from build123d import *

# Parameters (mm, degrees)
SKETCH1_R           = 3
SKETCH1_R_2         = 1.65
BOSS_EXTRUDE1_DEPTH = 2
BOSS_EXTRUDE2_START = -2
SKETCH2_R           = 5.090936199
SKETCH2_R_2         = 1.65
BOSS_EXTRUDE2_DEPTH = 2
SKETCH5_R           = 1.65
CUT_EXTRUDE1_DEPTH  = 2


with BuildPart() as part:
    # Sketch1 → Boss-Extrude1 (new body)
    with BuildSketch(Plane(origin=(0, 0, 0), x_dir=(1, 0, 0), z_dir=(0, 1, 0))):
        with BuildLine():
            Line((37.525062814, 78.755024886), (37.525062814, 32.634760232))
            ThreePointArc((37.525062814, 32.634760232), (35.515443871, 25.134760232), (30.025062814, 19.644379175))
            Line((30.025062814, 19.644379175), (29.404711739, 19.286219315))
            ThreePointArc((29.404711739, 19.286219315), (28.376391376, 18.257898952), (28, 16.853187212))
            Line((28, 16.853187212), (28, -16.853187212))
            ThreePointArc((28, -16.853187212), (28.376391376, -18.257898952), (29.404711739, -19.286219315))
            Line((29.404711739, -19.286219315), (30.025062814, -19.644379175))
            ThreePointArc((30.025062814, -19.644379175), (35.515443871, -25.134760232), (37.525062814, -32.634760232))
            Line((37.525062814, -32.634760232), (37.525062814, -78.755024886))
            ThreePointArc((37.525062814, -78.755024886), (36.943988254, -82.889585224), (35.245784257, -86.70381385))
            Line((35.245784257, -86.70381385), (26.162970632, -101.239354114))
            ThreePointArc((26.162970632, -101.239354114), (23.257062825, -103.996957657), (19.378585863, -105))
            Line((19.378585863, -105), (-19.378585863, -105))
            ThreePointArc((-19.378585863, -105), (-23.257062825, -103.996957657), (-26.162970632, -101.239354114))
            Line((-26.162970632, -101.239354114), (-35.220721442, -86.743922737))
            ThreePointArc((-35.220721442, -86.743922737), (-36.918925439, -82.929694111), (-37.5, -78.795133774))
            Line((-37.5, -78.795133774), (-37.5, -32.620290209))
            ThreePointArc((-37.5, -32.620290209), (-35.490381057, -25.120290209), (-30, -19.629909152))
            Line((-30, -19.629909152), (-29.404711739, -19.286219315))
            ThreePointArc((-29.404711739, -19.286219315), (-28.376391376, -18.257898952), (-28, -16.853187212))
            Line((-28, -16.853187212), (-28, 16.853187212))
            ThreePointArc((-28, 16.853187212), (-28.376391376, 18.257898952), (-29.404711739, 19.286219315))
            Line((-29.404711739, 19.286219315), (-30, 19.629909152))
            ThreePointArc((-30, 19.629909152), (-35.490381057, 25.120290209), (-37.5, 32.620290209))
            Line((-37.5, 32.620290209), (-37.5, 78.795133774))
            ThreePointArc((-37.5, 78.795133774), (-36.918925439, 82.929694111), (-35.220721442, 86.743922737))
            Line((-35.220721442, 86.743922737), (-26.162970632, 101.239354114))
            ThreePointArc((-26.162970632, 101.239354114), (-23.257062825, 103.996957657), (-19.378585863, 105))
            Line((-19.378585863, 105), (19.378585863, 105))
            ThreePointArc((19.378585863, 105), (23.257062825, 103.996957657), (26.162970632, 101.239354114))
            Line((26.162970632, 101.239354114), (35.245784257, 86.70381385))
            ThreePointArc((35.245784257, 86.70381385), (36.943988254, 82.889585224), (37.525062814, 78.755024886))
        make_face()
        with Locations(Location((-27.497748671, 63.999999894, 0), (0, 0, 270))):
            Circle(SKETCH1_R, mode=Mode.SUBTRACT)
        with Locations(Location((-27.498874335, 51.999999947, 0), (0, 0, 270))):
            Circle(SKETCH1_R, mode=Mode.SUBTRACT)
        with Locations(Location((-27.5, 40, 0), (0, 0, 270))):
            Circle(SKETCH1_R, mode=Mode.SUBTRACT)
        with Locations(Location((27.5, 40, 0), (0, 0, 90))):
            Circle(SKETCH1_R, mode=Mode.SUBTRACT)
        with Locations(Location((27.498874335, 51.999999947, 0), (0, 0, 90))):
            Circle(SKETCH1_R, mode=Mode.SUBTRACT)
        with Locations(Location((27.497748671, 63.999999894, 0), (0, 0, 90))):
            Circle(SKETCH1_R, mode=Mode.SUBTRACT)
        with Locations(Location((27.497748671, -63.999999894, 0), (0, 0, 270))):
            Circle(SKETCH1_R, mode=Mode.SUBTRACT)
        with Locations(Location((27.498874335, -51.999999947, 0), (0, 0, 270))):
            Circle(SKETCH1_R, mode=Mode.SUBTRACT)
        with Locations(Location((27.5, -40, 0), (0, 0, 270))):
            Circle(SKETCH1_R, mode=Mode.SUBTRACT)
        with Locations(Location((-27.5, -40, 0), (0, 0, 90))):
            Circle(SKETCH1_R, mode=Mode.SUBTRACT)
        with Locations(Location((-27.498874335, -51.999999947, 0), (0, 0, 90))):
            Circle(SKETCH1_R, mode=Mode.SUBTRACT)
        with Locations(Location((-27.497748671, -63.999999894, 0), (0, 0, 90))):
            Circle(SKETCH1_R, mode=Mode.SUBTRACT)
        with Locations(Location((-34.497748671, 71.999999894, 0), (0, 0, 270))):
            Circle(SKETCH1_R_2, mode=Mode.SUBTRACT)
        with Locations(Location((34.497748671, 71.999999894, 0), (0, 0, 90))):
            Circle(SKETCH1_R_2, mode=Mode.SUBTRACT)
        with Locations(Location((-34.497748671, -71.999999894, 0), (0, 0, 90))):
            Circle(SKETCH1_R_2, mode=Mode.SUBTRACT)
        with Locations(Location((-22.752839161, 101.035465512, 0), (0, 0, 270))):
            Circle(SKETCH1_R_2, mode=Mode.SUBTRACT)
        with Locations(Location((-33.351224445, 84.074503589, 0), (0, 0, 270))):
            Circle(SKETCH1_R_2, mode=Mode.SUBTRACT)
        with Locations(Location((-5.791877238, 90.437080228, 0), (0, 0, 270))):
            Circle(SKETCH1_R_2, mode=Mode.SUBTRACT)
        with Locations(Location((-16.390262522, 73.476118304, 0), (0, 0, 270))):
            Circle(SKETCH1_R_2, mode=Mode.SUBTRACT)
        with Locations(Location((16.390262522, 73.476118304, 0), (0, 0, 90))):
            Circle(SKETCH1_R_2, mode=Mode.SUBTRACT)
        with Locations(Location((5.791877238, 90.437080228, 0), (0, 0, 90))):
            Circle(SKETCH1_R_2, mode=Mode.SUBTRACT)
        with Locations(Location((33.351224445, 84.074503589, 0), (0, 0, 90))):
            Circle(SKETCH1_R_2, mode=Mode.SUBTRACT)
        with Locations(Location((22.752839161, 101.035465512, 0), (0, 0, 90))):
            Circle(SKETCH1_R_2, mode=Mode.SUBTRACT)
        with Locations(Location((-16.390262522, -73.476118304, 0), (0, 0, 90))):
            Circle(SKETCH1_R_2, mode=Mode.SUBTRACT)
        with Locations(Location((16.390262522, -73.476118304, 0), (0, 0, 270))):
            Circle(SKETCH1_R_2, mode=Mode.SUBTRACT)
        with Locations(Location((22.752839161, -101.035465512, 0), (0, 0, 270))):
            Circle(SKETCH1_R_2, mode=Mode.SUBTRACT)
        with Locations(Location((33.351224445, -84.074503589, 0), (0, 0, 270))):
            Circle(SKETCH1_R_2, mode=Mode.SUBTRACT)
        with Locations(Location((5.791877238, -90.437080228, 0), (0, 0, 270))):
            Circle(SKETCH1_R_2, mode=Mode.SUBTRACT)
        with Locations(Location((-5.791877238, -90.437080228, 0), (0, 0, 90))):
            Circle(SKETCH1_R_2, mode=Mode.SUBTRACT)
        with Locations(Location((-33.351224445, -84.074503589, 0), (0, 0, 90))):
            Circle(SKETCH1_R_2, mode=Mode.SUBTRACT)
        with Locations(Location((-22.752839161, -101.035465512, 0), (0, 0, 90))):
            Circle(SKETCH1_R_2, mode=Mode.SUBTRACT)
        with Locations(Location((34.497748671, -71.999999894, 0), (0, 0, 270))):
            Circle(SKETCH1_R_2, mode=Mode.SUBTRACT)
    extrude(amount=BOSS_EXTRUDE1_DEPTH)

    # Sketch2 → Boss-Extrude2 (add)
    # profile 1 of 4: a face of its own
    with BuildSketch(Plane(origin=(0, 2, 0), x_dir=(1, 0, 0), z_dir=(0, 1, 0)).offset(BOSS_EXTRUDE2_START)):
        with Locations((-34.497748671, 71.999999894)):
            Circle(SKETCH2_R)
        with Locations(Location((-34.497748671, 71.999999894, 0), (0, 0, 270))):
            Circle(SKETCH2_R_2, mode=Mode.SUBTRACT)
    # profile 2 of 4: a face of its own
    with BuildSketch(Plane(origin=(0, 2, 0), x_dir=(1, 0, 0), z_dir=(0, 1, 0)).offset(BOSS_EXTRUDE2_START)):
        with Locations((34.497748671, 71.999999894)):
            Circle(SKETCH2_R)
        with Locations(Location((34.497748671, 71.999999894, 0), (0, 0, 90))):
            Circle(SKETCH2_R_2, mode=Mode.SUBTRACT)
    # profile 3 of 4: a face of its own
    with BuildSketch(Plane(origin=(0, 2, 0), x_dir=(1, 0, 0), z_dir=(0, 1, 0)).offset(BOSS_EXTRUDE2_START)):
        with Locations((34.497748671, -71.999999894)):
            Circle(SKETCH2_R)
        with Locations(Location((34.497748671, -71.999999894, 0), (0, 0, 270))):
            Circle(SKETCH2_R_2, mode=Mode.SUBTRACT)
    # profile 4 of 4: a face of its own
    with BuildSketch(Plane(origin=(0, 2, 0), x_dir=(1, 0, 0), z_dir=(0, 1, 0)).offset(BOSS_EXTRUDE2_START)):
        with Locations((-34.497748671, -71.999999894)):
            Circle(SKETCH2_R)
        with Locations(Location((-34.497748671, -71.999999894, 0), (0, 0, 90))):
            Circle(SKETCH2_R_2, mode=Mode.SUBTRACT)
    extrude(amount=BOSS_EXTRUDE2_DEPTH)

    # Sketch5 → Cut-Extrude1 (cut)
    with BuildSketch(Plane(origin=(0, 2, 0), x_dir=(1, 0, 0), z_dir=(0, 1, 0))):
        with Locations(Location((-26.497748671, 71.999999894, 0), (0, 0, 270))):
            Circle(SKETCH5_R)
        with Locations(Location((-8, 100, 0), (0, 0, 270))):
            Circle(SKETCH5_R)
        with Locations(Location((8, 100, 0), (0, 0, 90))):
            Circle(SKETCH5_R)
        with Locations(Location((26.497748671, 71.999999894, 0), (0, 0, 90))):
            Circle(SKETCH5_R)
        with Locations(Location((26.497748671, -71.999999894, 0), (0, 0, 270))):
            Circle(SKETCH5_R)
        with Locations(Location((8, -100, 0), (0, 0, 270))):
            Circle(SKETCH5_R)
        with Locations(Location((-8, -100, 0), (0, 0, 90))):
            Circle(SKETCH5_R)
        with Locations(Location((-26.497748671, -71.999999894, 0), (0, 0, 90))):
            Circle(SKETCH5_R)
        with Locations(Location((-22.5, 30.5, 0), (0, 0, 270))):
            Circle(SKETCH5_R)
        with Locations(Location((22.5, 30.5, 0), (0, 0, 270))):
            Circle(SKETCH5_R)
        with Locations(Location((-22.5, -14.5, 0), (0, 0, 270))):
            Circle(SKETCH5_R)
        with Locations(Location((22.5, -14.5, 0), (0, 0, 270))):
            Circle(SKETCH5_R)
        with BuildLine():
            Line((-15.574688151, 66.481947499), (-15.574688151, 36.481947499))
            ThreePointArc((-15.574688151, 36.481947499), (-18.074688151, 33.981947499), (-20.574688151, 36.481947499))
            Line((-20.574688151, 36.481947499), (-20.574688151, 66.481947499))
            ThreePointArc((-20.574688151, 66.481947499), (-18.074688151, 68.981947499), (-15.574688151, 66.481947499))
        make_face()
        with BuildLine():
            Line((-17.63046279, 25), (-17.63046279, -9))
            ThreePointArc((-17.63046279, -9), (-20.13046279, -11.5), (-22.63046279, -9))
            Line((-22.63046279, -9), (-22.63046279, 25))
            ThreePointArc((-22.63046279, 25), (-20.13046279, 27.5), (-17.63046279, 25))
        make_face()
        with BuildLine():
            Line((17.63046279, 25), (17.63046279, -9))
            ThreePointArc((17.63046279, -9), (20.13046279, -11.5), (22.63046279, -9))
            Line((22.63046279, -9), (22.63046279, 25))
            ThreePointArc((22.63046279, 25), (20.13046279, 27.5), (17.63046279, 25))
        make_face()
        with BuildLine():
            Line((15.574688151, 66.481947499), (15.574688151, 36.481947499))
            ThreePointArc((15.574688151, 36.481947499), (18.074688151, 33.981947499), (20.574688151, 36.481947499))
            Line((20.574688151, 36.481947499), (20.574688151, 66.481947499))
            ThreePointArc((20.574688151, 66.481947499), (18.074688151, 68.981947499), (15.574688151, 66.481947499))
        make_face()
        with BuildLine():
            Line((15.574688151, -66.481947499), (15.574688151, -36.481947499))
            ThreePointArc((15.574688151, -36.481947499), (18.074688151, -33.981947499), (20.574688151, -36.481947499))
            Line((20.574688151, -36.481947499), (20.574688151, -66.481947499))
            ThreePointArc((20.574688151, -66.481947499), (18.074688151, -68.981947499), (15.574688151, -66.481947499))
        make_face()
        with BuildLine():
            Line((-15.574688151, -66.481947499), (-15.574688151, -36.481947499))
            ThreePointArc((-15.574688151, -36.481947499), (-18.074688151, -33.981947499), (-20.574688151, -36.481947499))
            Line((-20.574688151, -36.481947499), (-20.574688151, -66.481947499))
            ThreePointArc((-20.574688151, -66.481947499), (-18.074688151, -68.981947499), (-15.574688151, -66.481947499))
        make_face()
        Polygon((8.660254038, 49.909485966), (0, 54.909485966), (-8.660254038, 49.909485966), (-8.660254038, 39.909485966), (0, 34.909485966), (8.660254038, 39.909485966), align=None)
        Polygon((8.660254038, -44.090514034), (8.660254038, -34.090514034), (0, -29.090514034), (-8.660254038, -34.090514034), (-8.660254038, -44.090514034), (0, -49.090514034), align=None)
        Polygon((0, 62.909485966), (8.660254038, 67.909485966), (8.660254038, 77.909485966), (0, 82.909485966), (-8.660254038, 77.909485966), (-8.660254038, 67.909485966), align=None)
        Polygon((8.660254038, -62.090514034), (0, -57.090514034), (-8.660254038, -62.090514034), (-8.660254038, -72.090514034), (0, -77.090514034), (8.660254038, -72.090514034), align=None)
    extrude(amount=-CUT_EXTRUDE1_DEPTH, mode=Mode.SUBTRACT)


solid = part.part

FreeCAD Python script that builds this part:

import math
import FreeCAD as App
import Part
import Sketcher

V = App.Vector
Q = App.Units.Quantity

doc = App.newDocument("Part")
body = doc.addObject("PartDesign::Body", "Body")

# Sketch on XZ plane
sketch1 = body.newObject("Sketcher::SketchObject", "Sketch")
sketch1.AttachmentSupport = (doc.getObject("XZ_Plane"), [""])
sketch1.MapMode = "FlatFace"
sketch1.addGeometry(Part.LineSegment(V(37.5, -32.6, 0), V(37.5, -78.8, 0)), False)
sketch1.addGeometry(Part.ArcOfCircle(Part.Circle(V(22.5, -78.8, 0), V(0, 0, 1), 15), math.radians(-32), math.radians(0)), False)
sketch1.addGeometry(Part.LineSegment(V(35.2, -86.7, 0), V(26.2, -101.2, 0)), False)
sketch1.addGeometry(Part.ArcOfCircle(Part.Circle(V(19.4, -97, 0), V(0, 0, 1), 8), math.radians(-90), math.radians(-32)), False)
sketch1.addGeometry(Part.LineSegment(V(19.4, -105, 0), V(-19.4, -105, 0)), False)
sketch1.addGeometry(Part.ArcOfCircle(Part.Circle(V(-19.4, -97, 0), V(0, 0, 1), 8), math.radians(-148), math.radians(-90)), False)
sketch1.addGeometry(Part.LineSegment(V(-26.2, -101.2, 0), V(-35.2, -86.7, 0)), False)
sketch1.addGeometry(Part.ArcOfCircle(Part.Circle(V(-22.5, -78.8, 0), V(0, 0, 1), 15), math.radians(180), math.radians(212)), False)
sketch1.addGeometry(Part.LineSegment(V(-37.5, -78.8, 0), V(-37.5, -32.6, 0)), False)
sketch1.addGeometry(Part.ArcOfCircle(Part.Circle(V(-22.5, -32.6, 0), V(0, 0, 1), 15), math.radians(120), math.radians(180)), False)
sketch1.addGeometry(Part.LineSegment(V(-30, -19.6, 0), V(-29.4, -19.3, 0)), False)
sketch1.addGeometry(Part.ArcOfCircle(Part.Circle(V(-30.8, -16.9, 0), V(0, 0, 1), 2.8), math.radians(-60), math.radians(0)), False)
sketch1.addGeometry(Part.LineSegment(V(-28, -16.9, 0), V(-28, 16.9, 0)), False)
sketch1.addGeometry(Part.ArcOfCircle(Part.Circle(V(-30.8, 16.9, 0), V(0, 0, 1), 2.8), math.radians(0), math.radians(60)), False)
sketch1.addGeometry(Part.LineSegment(V(-29.4, 19.3, 0), V(-30, 19.6, 0)), False)
sketch1.addGeometry(Part.ArcOfCircle(Part.Circle(V(-22.5, 32.6, 0), V(0, 0, 1), 15), math.radians(180), math.radians(240)), False)
sketch1.addGeometry(Part.LineSegment(V(-37.5, 32.6, 0), V(-37.5, 78.8, 0)), False)
sketch1.addGeometry(Part.ArcOfCircle(Part.Circle(V(-22.5, 78.8, 0), V(0, 0, 1), 15), math.radians(148), math.radians(180)), False)
sketch1.addGeometry(Part.LineSegment(V(-35.2, 86.7, 0), V(-26.2, 101.2, 0)), False)
sketch1.addGeometry(Part.ArcOfCircle(Part.Circle(V(-19.4, 97, 0), V(0, 0, 1), 8), math.radians(90), math.radians(148)), False)
sketch1.addGeometry(Part.LineSegment(V(-19.4, 105, 0), V(19.4, 105, 0)), False)
sketch1.addGeometry(Part.ArcOfCircle(Part.Circle(V(19.4, 97, 0), V(0, 0, 1), 8), math.radians(32), math.radians(90)), False)
sketch1.addGeometry(Part.LineSegment(V(26.2, 101.2, 0), V(35.2, 86.7, 0)), False)
sketch1.addGeometry(Part.ArcOfCircle(Part.Circle(V(22.5, 78.8, 0), V(0, 0, 1), 15), math.radians(0), math.radians(32)), False)
sketch1.addGeometry(Part.LineSegment(V(37.5, 78.8, 0), V(37.5, 32.6, 0)), False)
sketch1.addGeometry(Part.ArcOfCircle(Part.Circle(V(22.5, 32.6, 0), V(0, 0, 1), 15), math.radians(-60), math.radians(0)), False)
sketch1.addGeometry(Part.LineSegment(V(30, 19.6, 0), V(29.4, 19.3, 0)), False)
sketch1.addGeometry(Part.ArcOfCircle(Part.Circle(V(30.8, 16.9, 0), V(0, 0, 1), 2.8), math.radians(120), math.radians(180)), False)
sketch1.addGeometry(Part.LineSegment(V(28, 16.9, 0), V(28, -16.9, 0)), False)
sketch1.addGeometry(Part.ArcOfCircle(Part.Circle(V(30.8, -16.9, 0), V(0, 0, 1), 2.8), math.radians(180), math.radians(240)), False)
sketch1.addGeometry(Part.LineSegment(V(29.4, -19.3, 0), V(30, -19.6, 0)), False)
sketch1.addGeometry(Part.ArcOfCircle(Part.Circle(V(22.5, -32.6, 0), V(0, 0, 1), 15), math.radians(0), math.radians(60)), False)
sketch1.addGeometry(Part.Circle(V(33.4, 84.1, 0), V(0, 0, 1), 1.6), False)
sketch1.addGeometry(Part.Circle(V(22.8, 101, 0), V(0, 0, 1), 1.6), False)
sketch1.addGeometry(Part.Circle(V(34.5, 72, 0), V(0, 0, 1), 1.6), False)
sketch1.addGeometry(Part.Circle(V(27.5, 64, 0), V(0, 0, 1), 3), False)
sketch1.addGeometry(Part.Circle(V(27.5, 52, 0), V(0, 0, 1), 3), False)
sketch1.addGeometry(Part.Circle(V(5.8, 90.4, 0), V(0, 0, 1), 1.6), False)
sketch1.addGeometry(Part.Circle(V(16.4, 73.5, 0), V(0, 0, 1), 1.6), False)
sketch1.addGeometry(Part.Circle(V(27.5, 40, 0), V(0, 0, 1), 3), False)
sketch1.addGeometry(Part.Circle(V(-5.8, 90.4, 0), V(0, 0, 1), 1.6), False)
sketch1.addGeometry(Part.Circle(V(-16.4, 73.5, 0), V(0, 0, 1), 1.6), False)
sketch1.addGeometry(Part.Circle(V(-22.8, 101, 0), V(0, 0, 1), 1.6), False)
sketch1.addGeometry(Part.Circle(V(-33.4, 84.1, 0), V(0, 0, 1), 1.6), False)
sketch1.addGeometry(Part.Circle(V(-34.5, 72, 0), V(0, 0, 1), 1.6), False)
sketch1.addGeometry(Part.Circle(V(-27.5, 64, 0), V(0, 0, 1), 3), False)
sketch1.addGeometry(Part.Circle(V(-27.5, 52, 0), V(0, 0, 1), 3), False)
sketch1.addGeometry(Part.Circle(V(-27.5, 40, 0), V(0, 0, 1), 3), False)
sketch1.addGeometry(Part.Circle(V(27.5, -40, 0), V(0, 0, 1), 3), False)
sketch1.addGeometry(Part.Circle(V(27.5, -52, 0), V(0, 0, 1), 3), False)
sketch1.addGeometry(Part.Circle(V(27.5, -64, 0), V(0, 0, 1), 3), False)
sketch1.addGeometry(Part.Circle(V(34.5, -72, 0), V(0, 0, 1), 1.6), False)
sketch1.addGeometry(Part.Circle(V(33.4, -84.1, 0), V(0, 0, 1), 1.6), False)
sketch1.addGeometry(Part.Circle(V(22.8, -101, 0), V(0, 0, 1), 1.6), False)
sketch1.addGeometry(Part.Circle(V(16.4, -73.5, 0), V(0, 0, 1), 1.6), False)
sketch1.addGeometry(Part.Circle(V(5.8, -90.4, 0), V(0, 0, 1), 1.6), False)
sketch1.addGeometry(Part.Circle(V(-27.5, -40, 0), V(0, 0, 1), 3), False)
sketch1.addGeometry(Part.Circle(V(-16.4, -73.5, 0), V(0, 0, 1), 1.6), False)
sketch1.addGeometry(Part.Circle(V(-5.8, -90.4, 0), V(0, 0, 1), 1.6), False)
sketch1.addGeometry(Part.Circle(V(-27.5, -52, 0), V(0, 0, 1), 3), False)
sketch1.addGeometry(Part.Circle(V(-27.5, -64, 0), V(0, 0, 1), 3), False)
sketch1.addGeometry(Part.Circle(V(-34.5, -72, 0), V(0, 0, 1), 1.6), False)
sketch1.addGeometry(Part.Circle(V(-22.8, -101, 0), V(0, 0, 1), 1.6), False)
sketch1.addGeometry(Part.Circle(V(-33.4, -84.1, 0), V(0, 0, 1), 1.6), False)
sketch1.addConstraint(Sketcher.Constraint("Tangent", 0, 2, 1, 2))
sketch1.addConstraint(Sketcher.Constraint("Tangent", 1, 1, 2, 1))
sketch1.addConstraint(Sketcher.Constraint("Tangent", 2, 2, 3, 2))
sketch1.addConstraint(Sketcher.Constraint("Tangent", 3, 1, 4, 1))
sketch1.addConstraint(Sketcher.Constraint("Tangent", 4, 2, 5, 2))
sketch1.addConstraint(Sketcher.Constraint("Tangent", 5, 1, 6, 1))
sketch1.addConstraint(Sketcher.Constraint("Tangent", 6, 2, 7, 2))
sketch1.addConstraint(Sketcher.Constraint("Tangent", 7, 1, 8, 1))
sketch1.addConstraint(Sketcher.Constraint("Tangent", 8, 2, 9, 2))
sketch1.addConstraint(Sketcher.Constraint("Tangent", 9, 1, 10, 1))
sketch1.addConstraint(Sketcher.Constraint("Tangent", 10, 2, 11, 1))
sketch1.addConstraint(Sketcher.Constraint("Tangent", 11, 2, 12, 1))
sketch1.addConstraint(Sketcher.Constraint("Tangent", 12, 2, 13, 1))
sketch1.addConstraint(Sketcher.Constraint("Tangent", 13, 2, 14, 1))
sketch1.addConstraint(Sketcher.Constraint("Tangent", 14, 2, 15, 2))
sketch1.addConstraint(Sketcher.Constraint("Tangent", 15, 1, 16, 1))
sketch1.addConstraint(Sketcher.Constraint("Tangent", 16, 2, 17, 2))
sketch1.addConstraint(Sketcher.Constraint("Tangent", 17, 1, 18, 1))
sketch1.addConstraint(Sketcher.Constraint("Tangent", 18, 2, 19, 2))
sketch1.addConstraint(Sketcher.Constraint("Tangent", 19, 1, 20, 1))
sketch1.addConstraint(Sketcher.Constraint("Tangent", 20, 2, 21, 2))
sketch1.addConstraint(Sketcher.Constraint("Tangent", 21, 1, 22, 1))
sketch1.addConstraint(Sketcher.Constraint("Tangent", 22, 2, 23, 2))
sketch1.addConstraint(Sketcher.Constraint("Tangent", 23, 1, 24, 1))
sketch1.addConstraint(Sketcher.Constraint("Tangent", 24, 2, 25, 2))
sketch1.addConstraint(Sketcher.Constraint("Tangent", 25, 1, 26, 1))
sketch1.addConstraint(Sketcher.Constraint("Tangent", 26, 2, 27, 1))
sketch1.addConstraint(Sketcher.Constraint("Tangent", 27, 2, 28, 1))
sketch1.addConstraint(Sketcher.Constraint("Tangent", 28, 2, 29, 1))
sketch1.addConstraint(Sketcher.Constraint("Tangent", 29, 2, 30, 1))
sketch1.addConstraint(Sketcher.Constraint("Tangent", 30, 2, 31, 2))
sketch1.addConstraint(Sketcher.Constraint("Tangent", 31, 1, 0, 1))
sketch1.addConstraint(Sketcher.Constraint("Vertical", 0))
sketch1.addConstraint(Sketcher.Constraint("Horizontal", 4))
sketch1.addConstraint(Sketcher.Constraint("Vertical", 8))
sketch1.addConstraint(Sketcher.Constraint("Vertical", 12))
sketch1.addConstraint(Sketcher.Constraint("Vertical", 16))
sketch1.addConstraint(Sketcher.Constraint("Horizontal", 20))
sketch1.addConstraint(Sketcher.Constraint("Vertical", 24))
sketch1.addConstraint(Sketcher.Constraint("Vertical", 28))
sketch1.addConstraint(Sketcher.Constraint("Equal", 3, 5))
sketch1.addConstraint(Sketcher.Constraint("Equal", 1, 7))
sketch1.addConstraint(Sketcher.Constraint("Equal", 7, 9))
sketch1.addConstraint(Sketcher.Constraint("Equal", 11, 13))
sketch1.addConstraint(Sketcher.Constraint("Equal", 9, 15))
sketch1.addConstraint(Sketcher.Constraint("Equal", 15, 17))
sketch1.addConstraint(Sketcher.Constraint("Equal", 5, 19))
sketch1.addConstraint(Sketcher.Constraint("Equal", 19, 21))
sketch1.addConstraint(Sketcher.Constraint("Equal", 17, 23))
sketch1.addConstraint(Sketcher.Constraint("Equal", 23, 25))
sketch1.addConstraint(Sketcher.Constraint("Equal", 13, 27))
sketch1.addConstraint(Sketcher.Constraint("Equal", 27, 29))
sketch1.addConstraint(Sketcher.Constraint("Equal", 25, 31))
sketch1.addConstraint(Sketcher.Constraint("Equal", 32, 33))
sketch1.addConstraint(Sketcher.Constraint("Equal", 33, 34))
sketch1.addConstraint(Sketcher.Constraint("Equal", 35, 36))
sketch1.addConstraint(Sketcher.Constraint("Equal", 34, 37))
sketch1.addConstraint(Sketcher.Constraint("Equal", 37, 38))
sketch1.addConstraint(Sketcher.Constraint("Equal", 36, 39))
sketch1.addConstraint(Sketcher.Constraint("Equal", 38, 40))
sketch1.addConstraint(Sketcher.Constraint("Equal", 40, 41))
sketch1.addConstraint(Sketcher.Constraint("Equal", 41, 42))
sketch1.addConstraint(Sketcher.Constraint("Equal", 42, 43))
sketch1.addConstraint(Sketcher.Constraint("Equal", 43, 44))
sketch1.addConstraint(Sketcher.Constraint("Equal", 39, 45))
sketch1.addConstraint(Sketcher.Constraint("Equal", 45, 46))
sketch1.addConstraint(Sketcher.Constraint("Equal", 46, 47))
sketch1.addConstraint(Sketcher.Constraint("Equal", 47, 48))
sketch1.addConstraint(Sketcher.Constraint("Equal", 48, 49))
sketch1.addConstraint(Sketcher.Constraint("Equal", 49, 50))
sketch1.addConstraint(Sketcher.Constraint("Equal", 44, 51))
sketch1.addConstraint(Sketcher.Constraint("Equal", 51, 52))
sketch1.addConstraint(Sketcher.Constraint("Equal", 52, 53))
sketch1.addConstraint(Sketcher.Constraint("Equal", 53, 54))
sketch1.addConstraint(Sketcher.Constraint("Equal", 54, 55))
sketch1.addConstraint(Sketcher.Constraint("Equal", 50, 56))
sketch1.addConstraint(Sketcher.Constraint("Equal", 55, 57))
sketch1.addConstraint(Sketcher.Constraint("Equal", 57, 58))
sketch1.addConstraint(Sketcher.Constraint("Equal", 56, 59))
sketch1.addConstraint(Sketcher.Constraint("Equal", 59, 60))
sketch1.addConstraint(Sketcher.Constraint("Equal", 58, 61))
sketch1.addConstraint(Sketcher.Constraint("Equal", 61, 62))
sketch1.addConstraint(Sketcher.Constraint("Equal", 62, 63))
sketch1.addConstraint(Sketcher.Constraint("Symmetric", 3, 3, 19, 3, -1, 1))
sketch1.addConstraint(Sketcher.Constraint("Symmetric", 11, 3, 27, 3, -1, 1))
sketch1.addConstraint(Sketcher.Constraint("Symmetric", 47, 3, 48, 3, -1, 1))
sketch1.addConstraint(Sketcher.Constraint("Symmetric", 46, 3, 49, 3, -1, 1))
sketch1.addConstraint(Sketcher.Constraint("Symmetric", 45, 3, 50, 3, -1, 1))
sketch1.addConstraint(Sketcher.Constraint("Symmetric", 44, 3, 51, 3, -1, 1))
sketch1.addConstraint(Sketcher.Constraint("Symmetric", 43, 3, 52, 3, -1, 1))
sketch1.addConstraint(Sketcher.Constraint("Symmetric", 42, 3, 53, 3, -1, 1))
sketch1.addConstraint(Sketcher.Constraint("Symmetric", 41, 3, 54, 3, -1, 1))
sketch1.addConstraint(Sketcher.Constraint("Symmetric", 40, 3, 55, 3, -1, 1))
sketch1.addConstraint(Sketcher.Constraint("Symmetric", 39, 3, 56, 3, -1, 1))
sketch1.addConstraint(Sketcher.Constraint("Symmetric", 38, 3, 57, 3, -1, 1))
sketch1.addConstraint(Sketcher.Constraint("Symmetric", 37, 3, 58, 3, -1, 1))
sketch1.addConstraint(Sketcher.Constraint("Symmetric", 36, 3, 59, 3, -1, 1))
sketch1.addConstraint(Sketcher.Constraint("Symmetric", 35, 3, 60, 3, -1, 1))
sketch1.addConstraint(Sketcher.Constraint("Symmetric", 34, 3, 61, 3, -1, 1))
sketch1.addConstraint(Sketcher.Constraint("Symmetric", 33, 3, 62, 3, -1, 1))
sketch1.addConstraint(Sketcher.Constraint("Symmetric", 32, 3, 63, 3, -1, 1))
sketch1.addConstraint(Sketcher.Constraint("Symmetric", 5, 1, 21, 1, -1, 1))
sketch1.addConstraint(Sketcher.Constraint("Symmetric", 13, 2, 29, 2, -1, 1))
sketch1.addConstraint(Sketcher.Constraint("Symmetric", 37, 3, 40, 3, -2))
sketch1.addConstraint(Sketcher.Constraint("Symmetric", 38, 3, 41, 3, -2))
sketch1.addConstraint(Sketcher.Constraint("Symmetric", 33, 3, 42, 3, -2))
sketch1.addConstraint(Sketcher.Constraint("Symmetric", 32, 3, 43, 3, -2))
sketch1.addConstraint(Sketcher.Constraint("Symmetric", 34, 3, 44, 3, -2))
sketch1.addConstraint(Sketcher.Constraint("Symmetric", 35, 3, 45, 3, -2))
sketch1.addConstraint(Sketcher.Constraint("Symmetric", 36, 3, 46, 3, -2))
sketch1.addConstraint(Sketcher.Constraint("Symmetric", 39, 3, 47, 3, -2))
sketch1.addConstraint(Sketcher.Constraint("Symmetric", 2, 2, 5, 1, -2))
sketch1.addConstraint(Sketcher.Constraint("Symmetric", 13, 2, 26, 2, -2))
sketch1.addConstraint(Sketcher.Constraint("Symmetric", 9, 3, 15, 3, -1))
sketch1.addConstraint(Sketcher.Constraint("Parallel", 2, 18))
sketch1.addConstraint(Sketcher.Constraint("Vertical", 1, 3, 23, 3))
sketch1.addConstraint(Sketcher.Constraint("Diameter", 35, Q("6 mm")))
sketch1.addConstraint(Sketcher.Constraint("Radius", 1, Q("15 mm")))
sketch1.addConstraint(Sketcher.Constraint("Radius", 3, Q("8 mm")))
sketch1.addConstraint(Sketcher.Constraint("Diameter", 32, Q("3.3 mm")))
sketch1.addConstraint(Sketcher.Constraint("Angle", 2, Q("-122 deg")))
sketch1.addConstraint(Sketcher.Constraint("Angle", 10, Q("30 deg")))
sketch1.addConstraint(Sketcher.Constraint("DistanceY", 3, 3, -1, 1, Q("97 mm")))
sketch1.addConstraint(Sketcher.Constraint("DistanceY", -1, 1, 34, 3, Q("72 mm")))
sketch1.addConstraint(Sketcher.Constraint("DistanceY", -1, 1, 35, 3, Q("64 mm")))
sketch1.addConstraint(Sketcher.Constraint("DistanceY", -1, 1, 36, 3, Q("52 mm")))
sketch1.addConstraint(Sketcher.Constraint("DistanceY", -1, 1, 39, 3, Q("40 mm")))
sketch1.addConstraint(Sketcher.Constraint("DistanceX", 9, 1, -1, 1, Q("30 mm")))
sketch1.addConstraint(Sketcher.Constraint("DistanceX", 11, 2, -1, 1, Q("28 mm")))
sketch1.addConstraint(Sketcher.Constraint("DistanceX", -1, 1, 39, 3, Q("27.5 mm")))
sketch1.addConstraint(Sketcher.Constraint("Radius", 11, Q("2.809423 mm")))
sketch1.addConstraint(Sketcher.Constraint("Distance", 6, Q("17.0927 mm")))
sketch1.addConstraint(Sketcher.Constraint("Distance", 26, Q("0.71632 mm")))
sketch1.addConstraint(Sketcher.Constraint("DistanceY", 0, 2, 0, 1, Q("46.120265 mm")))
sketch1.addConstraint(Sketcher.Constraint("DistanceX", -1, 1, 33, 3, Q("22.752839 mm")))
sketch1.addConstraint(Sketcher.Constraint("DistanceX", -1, 1, 34, 3, Q("34.497749 mm")))
sketch1.addConstraint(Sketcher.Constraint("DistanceX", -1, 1, 35, 3, Q("27.497749 mm")))
sketch1.addConstraint(Sketcher.Constraint("DistanceY", -1, 1, 37, 3, Q("90.43708 mm")))
sketch1.addConstraint(Sketcher.Constraint("DistanceY", -1, 1, 38, 3, Q("73.476118 mm")))
sketch1.addConstraint(Sketcher.Constraint("DistanceX", -1, 1, 32, 3, Q("33.351224 mm")))
sketch1.addConstraint(Sketcher.Constraint("DistanceY", -1, 1, 32, 3, Q("84.074504 mm")))
sketch1.addConstraint(Sketcher.Constraint("DistanceY", -1, 1, 33, 3, Q("101.035466 mm")))
sketch1.addConstraint(Sketcher.Constraint("DistanceX", -1, 1, 36, 3, Q("27.498874 mm")))
sketch1.addConstraint(Sketcher.Constraint("DistanceX", -1, 1, 37, 3, Q("5.791877 mm")))
sketch1.addConstraint(Sketcher.Constraint("DistanceX", -1, 1, 38, 3, Q("16.390263 mm")))
pad1 = body.newObject("PartDesign::Pad", "Pad")
pad1.Profile = sketch1
pad1.Length = 2
pad1.Reversed = True

# Sketch on XZ plane
sketch2 = body.newObject("Sketcher::SketchObject", "Sketch001")
sketch2.AttachmentSupport = (doc.getObject("XZ_Plane"), [""])
sketch2.MapMode = "FlatFace"
sketch2.addGeometry(Part.Circle(V(-34.5, -72, 0), V(0, 0, 1), 5.1), False)
sketch2.addGeometry(Part.Circle(V(-34.5, -72, 0), V(0, 0, 1), 1.6), False)
sketch2.addGeometry(Part.Circle(V(34.5, -72, 0), V(0, 0, 1), 5.1), False)
sketch2.addGeometry(Part.Circle(V(34.5, -72, 0), V(0, 0, 1), 1.6), False)
sketch2.addGeometry(Part.Circle(V(34.5, 72, 0), V(0, 0, 1), 5.1), False)
sketch2.addGeometry(Part.Circle(V(34.5, 72, 0), V(0, 0, 1), 1.6), False)
sketch2.addGeometry(Part.Circle(V(-34.5, 72, 0), V(0, 0, 1), 5.1), False)
sketch2.addGeometry(Part.Circle(V(-34.5, 72, 0), V(0, 0, 1), 1.6), False)
sketch2.addConstraint(Sketcher.Constraint("Coincident", 1, 3, 0, 3))
sketch2.addConstraint(Sketcher.Constraint("Coincident", 3, 3, 2, 3))
sketch2.addConstraint(Sketcher.Constraint("Coincident", 5, 3, 4, 3))
sketch2.addConstraint(Sketcher.Constraint("Coincident", 7, 3, 6, 3))
sketch2.addConstraint(Sketcher.Constraint("Equal", 0, 2))
sketch2.addConstraint(Sketcher.Constraint("Equal", 1, 3))
sketch2.addConstraint(Sketcher.Constraint("Equal", 2, 4))
sketch2.addConstraint(Sketcher.Constraint("Equal", 3, 5))
sketch2.addConstraint(Sketcher.Constraint("Equal", 4, 6))
sketch2.addConstraint(Sketcher.Constraint("Equal", 5, 7))
sketch2.addConstraint(Sketcher.Constraint("Symmetric", 0, 3, 4, 3, -1, 1))
sketch2.addConstraint(Sketcher.Constraint("Symmetric", 2, 3, 6, 3, -1, 1))
sketch2.addConstraint(Sketcher.Constraint("Symmetric", 0, 3, 2, 3, -2))
sketch2.addConstraint(Sketcher.Constraint("Diameter", 1, Q("3.3 mm")))
sketch2.addConstraint(Sketcher.Constraint("DistanceY", 0, 3, -1, 1, Q("72 mm")))
sketch2.addConstraint(Sketcher.Constraint("Diameter", 0, Q("10.181872 mm")))
sketch2.addConstraint(Sketcher.Constraint("DistanceX", 0, 3, -1, 1, Q("34.497749 mm")))
pad2 = body.newObject("PartDesign::Pad", "Pad001")
pad2.Profile = sketch2
pad2.Length = 2
pad2.Reversed = True

# Sketch on XZ plane
sketch3 = body.newObject("Sketcher::SketchObject", "Sketch002")
sketch3.AttachmentSupport = (doc.getObject("XZ_Plane"), [""])
sketch3.MapMode = "FlatFace"
sketch3.AttachmentOffset = App.Placement(V(0, 0, -2), App.Rotation())
sketch3.addGeometry(Part.Circle(V(-26.5, -72, 0), V(0, 0, 1), 1.6), False)
sketch3.addGeometry(Part.Circle(V(-8, -100, 0), V(0, 0, 1), 1.6), False)
sketch3.addGeometry(Part.Circle(V(8, -100, 0), V(0, 0, 1), 1.6), False)
sketch3.addGeometry(Part.Circle(V(26.5, -72, 0), V(0, 0, 1), 1.6), False)
sketch3.addGeometry(Part.Circle(V(26.5, 72, 0), V(0, 0, 1), 1.6), False)
sketch3.addGeometry(Part.Circle(V(8, 100, 0), V(0, 0, 1), 1.6), False)
sketch3.addGeometry(Part.Circle(V(-8, 100, 0), V(0, 0, 1), 1.6), False)
sketch3.addGeometry(Part.Circle(V(-26.5, 72, 0), V(0, 0, 1), 1.6), False)
sketch3.addGeometry(Part.Circle(V(-22.5, -30.5, 0), V(0, 0, 1), 1.6), False)
sketch3.addGeometry(Part.Circle(V(22.5, -30.5, 0), V(0, 0, 1), 1.6), False)
sketch3.addGeometry(Part.Circle(V(-22.5, 14.5, 0), V(0, 0, 1), 1.6), False)
sketch3.addGeometry(Part.Circle(V(22.5, 14.5, 0), V(0, 0, 1), 1.6), False)
sketch3.addGeometry(Part.LineSegment(V(-15.6, -36.5, 0), V(-15.6, -66.5, 0)), False)
sketch3.addGeometry(Part.ArcOfCircle(Part.Circle(V(-18.1, -66.5, 0), V(0, 0, 1), 2.5), math.radians(180), math.radians(360)), False)
sketch3.addGeometry(Part.LineSegment(V(-20.6, -66.5, 0), V(-20.6, -36.5, 0)), False)
sketch3.addGeometry(Part.ArcOfCircle(Part.Circle(V(-18.1, -36.5, 0), V(0, 0, 1), 2.5), math.radians(0), math.radians(180)), False)
sketch3.addGeometry(Part.LineSegment(V(-17.6, 9, 0), V(-17.6, -25, 0)), False)
sketch3.addGeometry(Part.ArcOfCircle(Part.Circle(V(-20.1, -25, 0), V(0, 0, 1), 2.5), math.radians(180), math.radians(360)), False)
sketch3.addGeometry(Part.LineSegment(V(-22.6, -25, 0), V(-22.6, 9, 0)), False)
sketch3.addGeometry(Part.ArcOfCircle(Part.Circle(V(-20.1, 9, 0), V(0, 0, 1), 2.5), math.radians(0), math.radians(180)), False)
sketch3.addGeometry(Part.LineSegment(V(17.6, -25, 0), V(17.6, 9, 0)), False)
sketch3.addGeometry(Part.ArcOfCircle(Part.Circle(V(20.1, 9, 0), V(0, 0, 1), 2.5), math.radians(0), math.radians(180)), False)
sketch3.addGeometry(Part.LineSegment(V(22.6, 9, 0), V(22.6, -25, 0)), False)
sketch3.addGeometry(Part.ArcOfCircle(Part.Circle(V(20.1, -25, 0), V(0, 0, 1), 2.5), math.radians(180), math.radians(360)), False)
sketch3.addGeometry(Part.LineSegment(V(15.6, -66.5, 0), V(15.6, -36.5, 0)), False)
sketch3.addGeometry(Part.ArcOfCircle(Part.Circle(V(18.1, -36.5, 0), V(0, 0, 1), 2.5), math.radians(0), math.radians(180)), False)
sketch3.addGeometry(Part.LineSegment(V(20.6, -36.5, 0), V(20.6, -66.5, 0)), False)
sketch3.addGeometry(Part.ArcOfCircle(Part.Circle(V(18.1, -66.5, 0), V(0, 0, 1), 2.5), math.radians(180), math.radians(360)), False)
sketch3.addGeometry(Part.LineSegment(V(15.6, 36.5, 0), V(15.6, 66.5, 0)), False)
sketch3.addGeometry(Part.ArcOfCircle(Part.Circle(V(18.1, 66.5, 0), V(0, 0, 1), 2.5), math.radians(0), math.radians(180)), False)
sketch3.addGeometry(Part.LineSegment(V(20.6, 66.5, 0), V(20.6, 36.5, 0)), False)
sketch3.addGeometry(Part.ArcOfCircle(Part.Circle(V(18.1, 36.5, 0), V(0, 0, 1), 2.5), math.radians(180), math.radians(360)), False)
sketch3.addGeometry(Part.LineSegment(V(-15.6, 66.5, 0), V(-15.6, 36.5, 0)), False)
sketch3.addGeometry(Part.ArcOfCircle(Part.Circle(V(-18.1, 36.5, 0), V(0, 0, 1), 2.5), math.radians(180), math.radians(360)), False)
sketch3.addGeometry(Part.LineSegment(V(-20.6, 36.5, 0), V(-20.6, 66.5, 0)), False)
sketch3.addGeometry(Part.ArcOfCircle(Part.Circle(V(-18.1, 66.5, 0), V(0, 0, 1), 2.5), math.radians(0), math.radians(180)), False)
sketch3.addGeometry(Part.LineSegment(V(8.7, -49.9, 0), V(0, -54.9, 0)), False)
sketch3.addGeometry(Part.LineSegment(V(0, -54.9, 0), V(-8.7, -49.9, 0)), False)
sketch3.addGeometry(Part.LineSegment(V(-8.7, -49.9, 0), V(-8.7, -39.9, 0)), False)
sketch3.addGeometry(Part.LineSegment(V(-8.7, -39.9, 0), V(0, -34.9, 0)), False)
sketch3.addGeometry(Part.LineSegment(V(0, -34.9, 0), V(8.7, -39.9, 0)), False)
sketch3.addGeometry(Part.LineSegment(V(8.7, -39.9, 0), V(8.7, -49.9, 0)), False)
sketch3.addGeometry(Part.LineSegment(V(8.7, 44.1, 0), V(8.7, 34.1, 0)), False)
sketch3.addGeometry(Part.LineSegment(V(8.7, 34.1, 0), V(0, 29.1, 0)), False)
sketch3.addGeometry(Part.LineSegment(V(0, 29.1, 0), V(-8.7, 34.1, 0)), False)
sketch3.addGeometry(Part.LineSegment(V(-8.7, 34.1, 0), V(-8.7, 44.1, 0)), False)
sketch3.addGeometry(Part.LineSegment(V(-8.7, 44.1, 0), V(0, 49.1, 0)), False)
sketch3.addGeometry(Part.LineSegment(V(0, 49.1, 0), V(8.7, 44.1, 0)), False)
sketch3.addGeometry(Part.LineSegment(V(0, -62.9, 0), V(8.7, -67.9, 0)), False)
sketch3.addGeometry(Part.LineSegment(V(8.7, -67.9, 0), V(8.7, -77.9, 0)), False)
sketch3.addGeometry(Part.LineSegment(V(8.7, -77.9, 0), V(0, -82.9, 0)), False)
sketch3.addGeometry(Part.LineSegment(V(0, -82.9, 0), V(-8.7, -77.9, 0)), False)
sketch3.addGeometry(Part.LineSegment(V(-8.7, -77.9, 0), V(-8.7, -67.9, 0)), False)
sketch3.addGeometry(Part.LineSegment(V(-8.7, -67.9, 0), V(0, -62.9, 0)), False)
sketch3.addGeometry(Part.LineSegment(V(8.7, 62.1, 0), V(0, 57.1, 0)), False)
sketch3.addGeometry(Part.LineSegment(V(0, 57.1, 0), V(-8.7, 62.1, 0)), False)
sketch3.addGeometry(Part.LineSegment(V(-8.7, 62.1, 0), V(-8.7, 72.1, 0)), False)
sketch3.addGeometry(Part.LineSegment(V(-8.7, 72.1, 0), V(0, 77.1, 0)), False)
sketch3.addGeometry(Part.LineSegment(V(0, 77.1, 0), V(8.7, 72.1, 0)), False)
sketch3.addGeometry(Part.LineSegment(V(8.7, 72.1, 0), V(8.7, 62.1, 0)), False)
sketch3.addConstraint(Sketcher.Constraint("Tangent", 12, 2, 13, 2))
sketch3.addConstraint(Sketcher.Constraint("Tangent", 13, 1, 14, 1))
sketch3.addConstraint(Sketcher.Constraint("Tangent", 14, 2, 15, 2))
sketch3.addConstraint(Sketcher.Constraint("Tangent", 15, 1, 12, 1))
sketch3.addConstraint(Sketcher.Constraint("Tangent", 16, 2, 17, 2))
sketch3.addConstraint(Sketcher.Constraint("Tangent", 17, 1, 18, 1))
sketch3.addConstraint(Sketcher.Constraint("Tangent", 18, 2, 19, 2))
sketch3.addConstraint(Sketcher.Constraint("Tangent", 19, 1, 16, 1))
sketch3.addConstraint(Sketcher.Constraint("Tangent", 20, 2, 21, 2))
sketch3.addConstraint(Sketcher.Constraint("Tangent", 21, 1, 22, 1))
sketch3.addConstraint(Sketcher.Constraint("Tangent", 22, 2, 23, 2))
sketch3.addConstraint(Sketcher.Constraint("Tangent", 23, 1, 20, 1))
sketch3.addConstraint(Sketcher.Constraint("Tangent", 24, 2, 25, 2))
sketch3.addConstraint(Sketcher.Constraint("Tangent", 25, 1, 26, 1))
sketch3.addConstraint(Sketcher.Constraint("Tangent", 26, 2, 27, 2))
sketch3.addConstraint(Sketcher.Constraint("Tangent", 27, 1, 24, 1))
sketch3.addConstraint(Sketcher.Constraint("Tangent", 28, 2, 29, 2))
sketch3.addConstraint(Sketcher.Constraint("Tangent", 29, 1, 30, 1))
sketch3.addConstraint(Sketcher.Constraint("Tangent", 30, 2, 31, 2))
sketch3.addConstraint(Sketcher.Constraint("Tangent", 31, 1, 28, 1))
sketch3.addConstraint(Sketcher.Constraint("Tangent", 32, 2, 33, 2))
sketch3.addConstraint(Sketcher.Constraint("Tangent", 33, 1, 34, 1))
sketch3.addConstraint(Sketcher.Constraint("Tangent", 34, 2, 35, 2))
sketch3.addConstraint(Sketcher.Constraint("Tangent", 35, 1, 32, 1))
sketch3.addConstraint(Sketcher.Constraint("Coincident", 36, 2, 37, 1))
sketch3.addConstraint(Sketcher.Constraint("Coincident", 37, 2, 38, 1))
sketch3.addConstraint(Sketcher.Constraint("Coincident", 38, 2, 39, 1))
sketch3.addConstraint(Sketcher.Constraint("Coincident", 39, 2, 40, 1))
sketch3.addConstraint(Sketcher.Constraint("Coincident", 40, 2, 41, 1))
sketch3.addConstraint(Sketcher.Constraint("Coincident", 41, 2, 36, 1))
sketch3.addConstraint(Sketcher.Constraint("Coincident", 42, 2, 43, 1))
sketch3.addConstraint(Sketcher.Constraint("Coincident", 43, 2, 44, 1))
sketch3.addConstraint(Sketcher.Constraint("Coincident", 44, 2, 45, 1))
sketch3.addConstraint(Sketcher.Constraint("Coincident", 45, 2, 46, 1))
sketch3.addConstraint(Sketcher.Constraint("Coincident", 46, 2, 47, 1))
sketch3.addConstraint(Sketcher.Constraint("Coincident", 47, 2, 42, 1))
sketch3.addConstraint(Sketcher.Constraint("Coincident", 48, 2, 49, 1))
sketch3.addConstraint(Sketcher.Constraint("Coincident", 49, 2, 50, 1))
sketch3.addConstraint(Sketcher.Constraint("Coincident", 50, 2, 51, 1))
sketch3.addConstraint(Sketcher.Constraint("Coincident", 51, 2, 52, 1))
sketch3.addConstraint(Sketcher.Constraint("Coincident", 52, 2, 53, 1))
sketch3.addConstraint(Sketcher.Constraint("Coincident", 53, 2, 48, 1))
sketch3.addConstraint(Sketcher.Constraint("Coincident", 54, 2, 55, 1))
sketch3.addConstraint(Sketcher.Constraint("Coincident", 55, 2, 56, 1))
sketch3.addConstraint(Sketcher.Constraint("Coincident", 56, 2, 57, 1))
sketch3.addConstraint(Sketcher.Constraint("Coincident", 57, 2, 58, 1))
sketch3.addConstraint(Sketcher.Constraint("Coincident", 58, 2, 59, 1))
sketch3.addConstraint(Sketcher.Constraint("Coincident", 59, 2, 54, 1))
sketch3.addConstraint(Sketcher.Constraint("Vertical", 12))
sketch3.addConstraint(Sketcher.Constraint("Vertical", 14))
sketch3.addConstraint(Sketcher.Constraint("Vertical", 16))
sketch3.addConstraint(Sketcher.Constraint("Vertical", 18))
sketch3.addConstraint(Sketcher.Constraint("Vertical", 20))
sketch3.addConstraint(Sketcher.Constraint("Vertical", 22))
sketch3.addConstraint(Sketcher.Constraint("Vertical", 24))
sketch3.addConstraint(Sketcher.Constraint("Vertical", 26))
sketch3.addConstraint(Sketcher.Constraint("Vertical", 28))
sketch3.addConstraint(Sketcher.Constraint("Vertical", 30))
sketch3.addConstraint(Sketcher.Constraint("Vertical", 32))
sketch3.addConstraint(Sketcher.Constraint("Vertical", 34))
sketch3.addConstraint(Sketcher.Constraint("Vertical", 38))
sketch3.addConstraint(Sketcher.Constraint("Vertical", 41))
sketch3.addConstraint(Sketcher.Constraint("Vertical", 42))
sketch3.addConstraint(Sketcher.Constraint("Vertical", 45))
sketch3.addConstraint(Sketcher.Constraint("Vertical", 49))
sketch3.addConstraint(Sketcher.Constraint("Vertical", 52))
sketch3.addConstraint(Sketcher.Constraint("Vertical", 56))
sketch3.addConstraint(Sketcher.Constraint("Vertical", 59))
sketch3.addConstraint(Sketcher.Constraint("Equal", 0, 1))
sketch3.addConstraint(Sketcher.Constraint("Equal", 1, 2))
sketch3.addConstraint(Sketcher.Constraint("Equal", 2, 3))
sketch3.addConstraint(Sketcher.Constraint("Equal", 3, 4))
sketch3.addConstraint(Sketcher.Constraint("Equal", 4, 5))
sketch3.addConstraint(Sketcher.Constraint("Equal", 5, 6))
sketch3.addConstraint(Sketcher.Constraint("Equal", 6, 7))
sketch3.addConstraint(Sketcher.Constraint("Equal", 7, 8))
sketch3.addConstraint(Sketcher.Constraint("Equal", 8, 9))
sketch3.addConstraint(Sketcher.Constraint("Equal", 9, 10))
sketch3.addConstraint(Sketcher.Constraint("Equal", 10, 11))
sketch3.addConstraint(Sketcher.Constraint("Equal", 15, 17))
sketch3.addConstraint(Sketcher.Constraint("Equal", 19, 21))
sketch3.addConstraint(Sketcher.Constraint("Equal", 23, 25))
sketch3.addConstraint(Sketcher.Constraint("Equal", 27, 29))
sketch3.addConstraint(Sketcher.Constraint("Equal", 31, 33))
sketch3.addConstraint(Sketcher.Constraint("Symmetric", 0, 3, 4, 3, -1, 1))
sketch3.addConstraint(Sketcher.Constraint("Symmetric", 1, 3, 5, 3, -1, 1))
sketch3.addConstraint(Sketcher.Constraint("Symmetric", 2, 3, 6, 3, -1, 1))
sketch3.addConstraint(Sketcher.Constraint("Symmetric", 3, 3, 7, 3, -1, 1))
sketch3.addConstraint(Sketcher.Constraint("Symmetric", 13, 3, 29, 3, -1, 1))
sketch3.addConstraint(Sketcher.Constraint("Symmetric", 25, 3, 33, 3, -1, 1))
sketch3.addConstraint(Sketcher.Constraint("Symmetric", 1, 3, 2, 3, -2))
sketch3.addConstraint(Sketcher.Constraint("Symmetric", 0, 3, 3, 3, -2))
sketch3.addConstraint(Sketcher.Constraint("Symmetric", 8, 3, 9, 3, -2))
sketch3.addConstraint(Sketcher.Constraint("Symmetric", 10, 3, 11, 3, -2))
sketch3.addConstraint(Sketcher.Constraint("Symmetric", 19, 3, 21, 3, -2))
sketch3.addConstraint(Sketcher.Constraint("Symmetric", 15, 3, 25, 3, -2))
sketch3.addConstraint(Sketcher.Constraint("Symmetric", 38, 2, 40, 2, -2))
sketch3.addConstraint(Sketcher.Constraint("Symmetric", 42, 2, 44, 2, -2))
sketch3.addConstraint(Sketcher.Constraint("Symmetric", 49, 2, 51, 2, -2))
sketch3.addConstraint(Sketcher.Constraint("Symmetric", 56, 2, 58, 2, -2))
sketch3.addConstraint(Sketcher.Constraint("PointOnObject", 36, 2, -2))
sketch3.addConstraint(Sketcher.Constraint("PointOnObject", 39, 2, -2))
sketch3.addConstraint(Sketcher.Constraint("PointOnObject", 43, 2, -2))
sketch3.addConstraint(Sketcher.Constraint("PointOnObject", 46, 2, -2))
sketch3.addConstraint(Sketcher.Constraint("PointOnObject", 50, 2, -2))
sketch3.addConstraint(Sketcher.Constraint("PointOnObject", 53, 2, -2))
sketch3.addConstraint(Sketcher.Constraint("PointOnObject", 54, 2, -2))
sketch3.addConstraint(Sketcher.Constraint("PointOnObject", 57, 2, -2))
sketch3.addConstraint(Sketcher.Constraint("Parallel", 36, 39))
sketch3.addConstraint(Sketcher.Constraint("Parallel", 37, 40))
sketch3.addConstraint(Sketcher.Constraint("Parallel", 39, 43))
sketch3.addConstraint(Sketcher.Constraint("Parallel", 43, 46))
sketch3.addConstraint(Sketcher.Constraint("Parallel", 44, 47))
sketch3.addConstraint(Sketcher.Constraint("Parallel", 47, 48))
sketch3.addConstraint(Sketcher.Constraint("Parallel", 46, 50))
sketch3.addConstraint(Sketcher.Constraint("Parallel", 50, 53))
sketch3.addConstraint(Sketcher.Constraint("Parallel", 53, 54))
sketch3.addConstraint(Sketcher.Constraint("Parallel", 51, 55))
sketch3.addConstraint(Sketcher.Constraint("Parallel", 54, 57))
sketch3.addConstraint(Sketcher.Constraint("Horizontal", 17, 3, 23, 3))
sketch3.addConstraint(Sketcher.Constraint("Horizontal", 13, 3, 27, 3))
sketch3.addConstraint(Sketcher.Constraint("Horizontal", 31, 3, 33, 3))
sketch3.addConstraint(Sketcher.Constraint("Horizontal", 29, 3, 35, 3))
sketch3.addConstraint(Sketcher.Constraint("Vertical", 8, 3, 10, 3))
sketch3.addConstraint(Sketcher.Constraint("Vertical", 41, 2, 42, 2))
sketch3.addConstraint(Sketcher.Constraint("Vertical", 47, 2, 48, 2))
sketch3.addConstraint(Sketcher.Constraint("Vertical", 52, 2, 55, 2))
sketch3.addConstraint(Sketcher.Constraint("Equal", 41, 42))
sketch3.addConstraint(Sketcher.Constraint("Equal", 45, 49))
sketch3.addConstraint(Sketcher.Constraint("Equal", 52, 56))
sketch3.addConstraint(Sketcher.Constraint("Diameter", 0, Q("3.3 mm")))
sketch3.addConstraint(Sketcher.Constraint("Radius", 13, Q("2.5 mm")))
sketch3.addConstraint(Sketcher.Constraint("DistanceY", 12, 2, 12, 1, Q("30 mm")))
sketch3.addConstraint(Sketcher.Constraint("DistanceY", 16, 2, 16, 1, Q("34 mm")))
sketch3.addConstraint(Sketcher.Constraint("DistanceY", 38, 1, 38, 2, Q("10 mm")))
sketch3.addConstraint(Sketcher.Constraint("Angle", 36, Q("-150 deg")))
sketch3.addConstraint(Sketcher.Constraint("Distance", 36, Q("10 mm")))
sketch3.addConstraint(Sketcher.Constraint("DistanceY", 0, 3, -1, 1, Q("72 mm")))
sketch3.addConstraint(Sketcher.Constraint("DistanceX", 1, 3, -1, 1, Q("8 mm")))
sketch3.addConstraint(Sketcher.Constraint("DistanceY", 1, 3, -1, 1, Q("100 mm")))
sketch3.addConstraint(Sketcher.Constraint("DistanceY", 17, 3, -1, 1, Q("25 mm")))
sketch3.addConstraint(Sketcher.Constraint("DistanceX", 8, 3, -1, 1, Q("22.5 mm")))
sketch3.addConstraint(Sketcher.Constraint("DistanceY", 8, 3, -1, 1, Q("30.5 mm")))
sketch3.addConstraint(Sketcher.Constraint("DistanceY", -1, 1, 10, 3, Q("14.5 mm")))
sketch3.addConstraint(Sketcher.Constraint("DistanceX", 0, 3, -1, 1, Q("26.497749 mm")))
sketch3.addConstraint(Sketcher.Constraint("DistanceX", 13, 3, -1, 1, Q("18.074688 mm")))
sketch3.addConstraint(Sketcher.Constraint("DistanceY", 13, 3, -1, 1, Q("66.481947 mm")))
sketch3.addConstraint(Sketcher.Constraint("DistanceX", 17, 3, -1, 1, Q("20.130463 mm")))
sketch3.addConstraint(Sketcher.Constraint("DistanceY", 36, 2, -1, 1, Q("54.909486 mm")))
sketch3.addConstraint(Sketcher.Constraint("DistanceY", -1, 1, 42, 2, Q("34.090514 mm")))
sketch3.addConstraint(Sketcher.Constraint("DistanceY", 48, 2, -1, 1, Q("67.909486 mm")))
sketch3.addConstraint(Sketcher.Constraint("DistanceY", -1, 1, 54, 2, Q("57.090514 mm")))
pocket1 = body.newObject("PartDesign::Pocket", "Pocket")
pocket1.Profile = sketch3
pocket1.Length = 2
pocket1.Reversed = True

doc.recompute()
